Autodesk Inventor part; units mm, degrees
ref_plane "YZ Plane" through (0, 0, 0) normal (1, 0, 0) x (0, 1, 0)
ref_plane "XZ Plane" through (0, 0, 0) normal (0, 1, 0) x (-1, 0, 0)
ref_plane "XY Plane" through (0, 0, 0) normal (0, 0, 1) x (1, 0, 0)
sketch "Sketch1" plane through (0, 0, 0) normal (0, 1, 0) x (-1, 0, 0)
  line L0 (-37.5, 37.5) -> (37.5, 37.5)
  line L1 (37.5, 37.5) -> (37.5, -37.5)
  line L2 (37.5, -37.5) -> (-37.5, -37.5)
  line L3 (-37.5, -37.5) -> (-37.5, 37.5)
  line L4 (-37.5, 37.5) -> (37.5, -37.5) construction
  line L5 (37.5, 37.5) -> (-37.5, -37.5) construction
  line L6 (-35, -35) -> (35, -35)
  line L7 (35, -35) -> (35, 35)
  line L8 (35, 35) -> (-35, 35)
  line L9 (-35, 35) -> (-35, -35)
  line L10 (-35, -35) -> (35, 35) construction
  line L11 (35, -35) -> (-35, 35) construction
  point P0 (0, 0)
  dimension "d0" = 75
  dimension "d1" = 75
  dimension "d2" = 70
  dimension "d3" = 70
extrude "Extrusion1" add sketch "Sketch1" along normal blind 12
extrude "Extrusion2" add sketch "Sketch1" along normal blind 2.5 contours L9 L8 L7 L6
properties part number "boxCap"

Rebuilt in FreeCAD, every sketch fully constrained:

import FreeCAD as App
import Part
import Sketcher

doc = App.newDocument("Part")
params = doc.addObject("Spreadsheet::Sheet", "Params")
for row, (alias, value) in enumerate([
    ("sketch1_width", "75 mm"),
    ("sketch1_width2", "70 mm"),
    ("pad1_length", "12 mm"),
    ("sketch2_width", "70 mm"),
    ("pad2_length", "2.5 mm"),
], start=1):
    params.set(f"A{row}", alias)
    params.set(f"B{row}", "=" + value)
    params.setAlias(f"B{row}", alias)

body = doc.addObject("PartDesign::Body", "Body")

# Sketch on XZ plane
sketch1 = doc.addObject("Sketcher::SketchObject", "Sketch")
body.addObject(sketch1)
sketch1.AttachmentSupport = (doc.XZ_Plane, [""])
sketch1.MapMode = "FlatFace"
sketch1.addGeometry([
    Part.LineSegment(App.Vector(-37.5, 37.5, 0), App.Vector(37.5, 37.5, 0)),  # 0
    Part.LineSegment(App.Vector(37.5, 37.5, 0), App.Vector(37.5, -37.5, 0)),  # 1
    Part.LineSegment(App.Vector(37.5, -37.5, 0), App.Vector(-37.5, -37.5, 0)),  # 2
    Part.LineSegment(App.Vector(-37.5, -37.5, 0), App.Vector(-37.5, 37.5, 0)),  # 3
    Part.LineSegment(App.Vector(-35, -35, 0), App.Vector(35, -35, 0)),  # 4
    Part.LineSegment(App.Vector(35, -35, 0), App.Vector(35, 35, 0)),  # 5
    Part.LineSegment(App.Vector(35, 35, 0), App.Vector(-35, 35, 0)),  # 6
    Part.LineSegment(App.Vector(-35, 35, 0), App.Vector(-35, -35, 0)),  # 7
], False)
sketch1.addConstraint([
    Sketcher.Constraint("Coincident", 0, 2, 1, 1),
    Sketcher.Constraint("Coincident", 1, 2, 2, 1),
    Sketcher.Constraint("Coincident", 2, 2, 3, 1),
    Sketcher.Constraint("Coincident", 3, 2, 0, 1),
    Sketcher.Constraint("Coincident", 4, 2, 5, 1),
    Sketcher.Constraint("Coincident", 5, 2, 6, 1),
    Sketcher.Constraint("Coincident", 6, 2, 7, 1),
    Sketcher.Constraint("Coincident", 7, 2, 4, 1),
    Sketcher.Constraint("Horizontal", 0),
    Sketcher.Constraint("Vertical", 1),
    Sketcher.Constraint("Horizontal", 2),
    Sketcher.Constraint("Vertical", 3),
    Sketcher.Constraint("Horizontal", 4),
    Sketcher.Constraint("Vertical", 5),
    Sketcher.Constraint("Horizontal", 6),
    Sketcher.Constraint("Vertical", 7),
    Sketcher.Constraint("Symmetric", 0, 2, 2, 2, -1, 1),
    Sketcher.Constraint("Symmetric", 4, 2, 6, 2, -1, 1),
    Sketcher.Constraint("Equal", 2, 1),
    Sketcher.Constraint("Equal", 6, 5),
    Sketcher.Constraint("DistanceX", 0, 1, 0, 2, 75.0),
    Sketcher.Constraint("DistanceX", 4, 1, 4, 2, 70.0),
])
sketch1.setExpression("Constraints[20]", "Params.sketch1_width")
sketch1.setExpression("Constraints[21]", "Params.sketch1_width2")
pad1 = doc.addObject("PartDesign::Pad", "Pad")
body.addObject(pad1)
pad1.Profile = sketch1
pad1.setExpression("Length", "Params.pad1_length")
pad1.Reversed = True

# Sketch on XZ plane
sketch2 = doc.addObject("Sketcher::SketchObject", "Sketch001")
body.addObject(sketch2)
sketch2.AttachmentSupport = (doc.XZ_Plane, [""])
sketch2.MapMode = "FlatFace"
sketch2.addGeometry([
    Part.LineSegment(App.Vector(35, 35, 0), App.Vector(35, -35, 0)),
    Part.LineSegment(App.Vector(35, -35, 0), App.Vector(-35, -35, 0)),
    Part.LineSegment(App.Vector(-35, -35, 0), App.Vector(-35, 35, 0)),
    Part.LineSegment(App.Vector(-35, 35, 0), App.Vector(35, 35, 0)),
], False)
sketch2.addConstraint([
    Sketcher.Constraint("Coincident", 0, 2, 1, 1),
    Sketcher.Constraint("Coincident", 1, 2, 2, 1),
    Sketcher.Constraint("Coincident", 2, 2, 3, 1),
    Sketcher.Constraint("Coincident", 3, 2, 0, 1),
    Sketcher.Constraint("Vertical", 0),
    Sketcher.Constraint("Horizontal", 1),
    Sketcher.Constraint("Vertical", 2),
    Sketcher.Constraint("Horizontal", 3),
    Sketcher.Constraint("Symmetric", 0, 2, 2, 2, -1, 1),
    Sketcher.Constraint("Equal", 3, 0),
    Sketcher.Constraint("DistanceX", 1, 2, 1, 1, 70.0),
])
sketch2.setExpression("Constraints[10]", "Params.sketch2_width")
pad2 = doc.addObject("PartDesign::Pad", "Pad001")
body.addObject(pad2)
pad2.Profile = sketch2
pad2.setExpression("Length", "Params.pad2_length")
pad2.Reversed = True

doc.recompute()
